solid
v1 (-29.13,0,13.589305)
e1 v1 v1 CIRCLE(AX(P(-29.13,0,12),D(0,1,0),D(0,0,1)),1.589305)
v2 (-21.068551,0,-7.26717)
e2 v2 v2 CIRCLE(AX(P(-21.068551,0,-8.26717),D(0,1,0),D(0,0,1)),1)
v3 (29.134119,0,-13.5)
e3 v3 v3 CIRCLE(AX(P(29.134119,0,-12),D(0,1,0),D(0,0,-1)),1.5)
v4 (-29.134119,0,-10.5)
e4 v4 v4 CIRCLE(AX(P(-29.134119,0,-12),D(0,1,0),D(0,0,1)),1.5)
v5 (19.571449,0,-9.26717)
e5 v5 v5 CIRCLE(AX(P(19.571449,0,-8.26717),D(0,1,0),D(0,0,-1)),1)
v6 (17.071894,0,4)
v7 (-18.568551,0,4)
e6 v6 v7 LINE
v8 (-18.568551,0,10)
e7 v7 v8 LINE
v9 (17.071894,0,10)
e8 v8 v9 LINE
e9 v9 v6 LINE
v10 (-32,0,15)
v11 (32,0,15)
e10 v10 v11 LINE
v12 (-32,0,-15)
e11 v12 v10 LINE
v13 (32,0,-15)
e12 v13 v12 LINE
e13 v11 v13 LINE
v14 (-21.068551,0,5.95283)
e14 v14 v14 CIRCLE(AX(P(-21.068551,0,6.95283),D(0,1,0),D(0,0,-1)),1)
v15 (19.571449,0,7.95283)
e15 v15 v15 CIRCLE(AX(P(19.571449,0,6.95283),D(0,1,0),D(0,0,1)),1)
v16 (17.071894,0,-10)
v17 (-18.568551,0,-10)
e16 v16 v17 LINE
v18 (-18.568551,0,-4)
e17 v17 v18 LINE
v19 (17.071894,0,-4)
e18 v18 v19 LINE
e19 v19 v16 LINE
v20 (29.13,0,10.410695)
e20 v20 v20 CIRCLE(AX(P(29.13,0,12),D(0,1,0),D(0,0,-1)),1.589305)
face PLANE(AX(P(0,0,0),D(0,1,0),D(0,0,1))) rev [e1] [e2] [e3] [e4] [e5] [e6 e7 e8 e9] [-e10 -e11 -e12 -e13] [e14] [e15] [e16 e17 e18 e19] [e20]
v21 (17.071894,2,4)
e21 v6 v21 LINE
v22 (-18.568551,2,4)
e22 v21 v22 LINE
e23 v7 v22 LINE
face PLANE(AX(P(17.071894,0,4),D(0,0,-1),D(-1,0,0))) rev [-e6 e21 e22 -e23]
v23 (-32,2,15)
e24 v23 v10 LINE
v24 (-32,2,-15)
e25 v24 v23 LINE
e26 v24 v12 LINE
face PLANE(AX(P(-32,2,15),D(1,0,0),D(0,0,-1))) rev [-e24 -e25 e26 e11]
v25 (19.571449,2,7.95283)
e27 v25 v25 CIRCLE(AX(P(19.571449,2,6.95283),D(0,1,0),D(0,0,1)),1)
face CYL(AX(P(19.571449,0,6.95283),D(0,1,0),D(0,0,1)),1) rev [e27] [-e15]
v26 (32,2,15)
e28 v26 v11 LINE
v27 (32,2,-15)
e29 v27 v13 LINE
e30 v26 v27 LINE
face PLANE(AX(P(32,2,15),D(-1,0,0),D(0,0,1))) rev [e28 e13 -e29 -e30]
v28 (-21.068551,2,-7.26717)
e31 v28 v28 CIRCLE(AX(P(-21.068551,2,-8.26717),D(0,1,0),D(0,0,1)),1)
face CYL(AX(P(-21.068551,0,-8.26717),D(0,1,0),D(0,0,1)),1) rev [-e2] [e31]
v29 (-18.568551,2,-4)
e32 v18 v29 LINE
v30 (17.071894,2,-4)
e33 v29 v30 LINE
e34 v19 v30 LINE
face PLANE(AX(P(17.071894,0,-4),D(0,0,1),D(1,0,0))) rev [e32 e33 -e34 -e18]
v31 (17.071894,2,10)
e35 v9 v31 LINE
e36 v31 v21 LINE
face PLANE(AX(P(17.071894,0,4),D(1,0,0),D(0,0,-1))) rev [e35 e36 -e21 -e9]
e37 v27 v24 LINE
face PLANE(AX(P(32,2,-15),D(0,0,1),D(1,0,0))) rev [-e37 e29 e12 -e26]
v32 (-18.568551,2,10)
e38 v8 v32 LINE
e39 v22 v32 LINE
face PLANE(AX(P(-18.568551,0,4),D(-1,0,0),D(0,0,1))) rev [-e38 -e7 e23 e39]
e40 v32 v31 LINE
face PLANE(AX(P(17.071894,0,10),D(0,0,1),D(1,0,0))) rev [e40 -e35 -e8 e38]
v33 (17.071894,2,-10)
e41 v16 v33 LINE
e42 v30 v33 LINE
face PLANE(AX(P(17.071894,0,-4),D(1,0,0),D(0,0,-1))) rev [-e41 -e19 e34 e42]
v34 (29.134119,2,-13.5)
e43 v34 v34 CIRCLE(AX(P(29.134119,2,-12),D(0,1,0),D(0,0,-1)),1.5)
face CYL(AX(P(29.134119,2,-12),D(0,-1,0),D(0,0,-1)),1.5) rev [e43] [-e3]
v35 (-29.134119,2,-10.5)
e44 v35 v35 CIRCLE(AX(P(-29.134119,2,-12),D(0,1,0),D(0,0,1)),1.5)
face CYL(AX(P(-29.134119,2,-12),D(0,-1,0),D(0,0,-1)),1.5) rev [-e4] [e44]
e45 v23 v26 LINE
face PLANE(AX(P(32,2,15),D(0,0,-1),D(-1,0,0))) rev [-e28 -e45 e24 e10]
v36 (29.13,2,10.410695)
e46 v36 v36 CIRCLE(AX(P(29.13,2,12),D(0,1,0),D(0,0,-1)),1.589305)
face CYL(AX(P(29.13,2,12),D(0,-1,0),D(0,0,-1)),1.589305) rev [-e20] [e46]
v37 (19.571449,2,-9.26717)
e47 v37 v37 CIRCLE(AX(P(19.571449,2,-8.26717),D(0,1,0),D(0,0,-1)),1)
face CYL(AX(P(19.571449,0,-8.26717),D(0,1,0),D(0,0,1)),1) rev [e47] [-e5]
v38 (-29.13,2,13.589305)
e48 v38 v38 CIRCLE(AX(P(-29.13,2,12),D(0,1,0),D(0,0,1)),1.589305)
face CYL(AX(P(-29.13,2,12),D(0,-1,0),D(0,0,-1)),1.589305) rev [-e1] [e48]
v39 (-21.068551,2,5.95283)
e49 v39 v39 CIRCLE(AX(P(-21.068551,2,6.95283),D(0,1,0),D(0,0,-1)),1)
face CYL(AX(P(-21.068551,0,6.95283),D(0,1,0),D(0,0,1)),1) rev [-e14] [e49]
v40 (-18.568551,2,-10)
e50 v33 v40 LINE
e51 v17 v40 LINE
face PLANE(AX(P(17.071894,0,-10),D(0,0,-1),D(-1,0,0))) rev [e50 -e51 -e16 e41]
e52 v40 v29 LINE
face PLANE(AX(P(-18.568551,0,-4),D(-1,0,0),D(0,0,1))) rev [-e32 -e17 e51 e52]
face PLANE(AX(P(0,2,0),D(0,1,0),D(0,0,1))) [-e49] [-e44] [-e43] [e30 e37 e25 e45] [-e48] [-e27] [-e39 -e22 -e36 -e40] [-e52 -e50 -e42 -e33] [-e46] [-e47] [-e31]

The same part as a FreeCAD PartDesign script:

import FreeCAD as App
import Part
import Sketcher
Q = App.Units.Quantity


def add_polygon(sketch, points):
    """Adds a closed chain of lines whose ends are joined by coincident constraints."""
    first, n = sketch.GeometryCount, len(points)
    for a, b in zip(points, points[1:] + points[:1]):
        sketch.addGeometry(Part.LineSegment(App.Vector(*a, 0), App.Vector(*b, 0)), False)
    for i in range(n):
        sketch.addConstraint(Sketcher.Constraint("Coincident", first + i, 2, first + (i + 1) % n, 1))

doc = App.newDocument("Part")
body = doc.addObject("PartDesign::Body", "Body")

# Sketch on XZ plane
sketch1 = doc.addObject("Sketcher::SketchObject", "Sketch")
body.addObject(sketch1)
sketch1.AttachmentSupport = (doc.XZ_Plane, [""])
sketch1.MapMode = "FlatFace"
add_polygon(sketch1, [(-32, -15), (-32, 15), (32, 15), (32, -15)])  # lines 0-3
sketch1.addGeometry(Part.Circle(App.Vector(-29.1, 12, 0), App.Vector(0, 0, 1), 1.6), False)  # 4
sketch1.addGeometry(Part.Circle(App.Vector(29.1, 12, 0), App.Vector(0, 0, 1), 1.6), False)  # 5
sketch1.addGeometry(Part.Circle(App.Vector(-29.1, -12, 0), App.Vector(0, 0, 1), 1.5), False)  # 6
sketch1.addGeometry(Part.Circle(App.Vector(29.1, -12, 0), App.Vector(0, 0, 1), 1.5), False)  # 7
sketch1.addConstraint([
    Sketcher.Constraint("Vertical", 0),
    Sketcher.Constraint("Horizontal", 1),
    Sketcher.Constraint("Vertical", 2),
    Sketcher.Constraint("Horizontal", 3),
    Sketcher.Constraint("Equal", 4, 5),
    Sketcher.Constraint("Equal", 6, 7),
    Sketcher.Constraint("Symmetric", 0, 2, 2, 2, -1, 1),
    Sketcher.Constraint("Symmetric", 4, 3, 5, 3, -2),
    Sketcher.Constraint("Symmetric", 6, 3, 7, 3, -2),
    Sketcher.Constraint("Diameter", 6, Q("3 mm")),
    Sketcher.Constraint("DistanceX", 1, 1, 1, 2, Q("64 mm")),
    Sketcher.Constraint("DistanceY", 0, 1, 0, 2, Q("30 mm")),
    Sketcher.Constraint("DistanceY", -1, 1, 4, 3, Q("12 mm")),
    Sketcher.Constraint("DistanceY", 6, 3, -1, 1, Q("12 mm")),
    Sketcher.Constraint("Diameter", 4, Q("3.17861 mm")),
    Sketcher.Constraint("DistanceX", 4, 3, -1, 1, Q("29.13 mm")),
    Sketcher.Constraint("DistanceX", 6, 3, -1, 1, Q("29.134119 mm")),
])
pad1 = doc.addObject("PartDesign::Pad", "Pad")
body.addObject(pad1)
pad1.Profile = sketch1
pad1.Length = 2
pad1.Reversed = True

# Sketch on XZ plane
sketch2 = doc.addObject("Sketcher::SketchObject", "Sketch001")
body.addObject(sketch2)
sketch2.AttachmentSupport = (doc.XZ_Plane, [""])
sketch2.MapMode = "FlatFace"
sketch2.AttachmentOffset = App.Placement(App.Vector(0, 0, -2), App.Rotation())
sketch2.addGeometry(Part.Circle(App.Vector(-21.1, -8.3, 0), App.Vector(0, 0, 1), 1), False)  # 0
sketch2.addGeometry(Part.Circle(App.Vector(19.6, -8.3, 0), App.Vector(0, 0, 1), 1), False)  # 1
sketch2.addGeometry(Part.Circle(App.Vector(19.6, 7, 0), App.Vector(0, 0, 1), 1), False)  # 2
sketch2.addGeometry(Part.Circle(App.Vector(-21.1, 7, 0), App.Vector(0, 0, 1), 1), False)  # 3
add_polygon(sketch2, [(-18.6, 4), (-18.6, 10), (17.1, 10), (17.1, 4)])  # lines 4-7
add_polygon(sketch2, [(-18.6, -10), (-18.6, -4), (17.1, -4), (17.1, -10)])  # lines 8-11
sketch2.addConstraint([
    Sketcher.Constraint("Vertical", 4),
    Sketcher.Constraint("Horizontal", 5),
    Sketcher.Constraint("Vertical", 6),
    Sketcher.Constraint("Horizontal", 7),
    Sketcher.Constraint("Vertical", 8),
    Sketcher.Constraint("Horizontal", 9),
    Sketcher.Constraint("Vertical", 10),
    Sketcher.Constraint("Horizontal", 11),
    Sketcher.Constraint("Equal", 0, 1),
    Sketcher.Constraint("Equal", 1, 2),
    Sketcher.Constraint("Equal", 2, 3),
    Sketcher.Constraint("Symmetric", 7, 2, 8, 2, -1),
    Sketcher.Constraint("Symmetric", 5, 2, 10, 2, -1),
    Sketcher.Constraint("Horizontal", 0, 3, 1, 3),
    Sketcher.Constraint("Horizontal", 2, 3, 3, 3),
    Sketcher.Constraint("Vertical", 1, 3, 2, 3),
    Sketcher.Constraint("Vertical", 0, 3, 3, 3),
    Sketcher.Constraint("Diameter", 0, Q("2 mm")),
    Sketcher.Constraint("DistanceY", 4, 1, 4, 2, Q("6 mm")),
    Sketcher.Constraint("DistanceY", -1, 1, 4, 2, Q("10 mm")),
    Sketcher.Constraint("DistanceX", 3, 3, 4, 2, Q("2.5 mm")),
    Sketcher.Constraint("DistanceX", 0, 3, 1, 3, Q("40.64 mm")),
    Sketcher.Constraint("DistanceY", 1, 3, 2, 3, Q("15.22 mm")),
    Sketcher.Constraint("DistanceX", 5, 1, 5, 2, Q("35.640445 mm")),
    Sketcher.Constraint("DistanceX", 0, 3, -1, 1, Q("21.068551 mm")),
    Sketcher.Constraint("DistanceY", 0, 3, -1, 1, Q("8.26717 mm")),
])
pocket1 = doc.addObject("PartDesign::Pocket", "Pocket")
body.addObject(pocket1)
pocket1.Profile = sketch2
pocket1.Length = 2
pocket1.Reversed = True

doc.recompute()
